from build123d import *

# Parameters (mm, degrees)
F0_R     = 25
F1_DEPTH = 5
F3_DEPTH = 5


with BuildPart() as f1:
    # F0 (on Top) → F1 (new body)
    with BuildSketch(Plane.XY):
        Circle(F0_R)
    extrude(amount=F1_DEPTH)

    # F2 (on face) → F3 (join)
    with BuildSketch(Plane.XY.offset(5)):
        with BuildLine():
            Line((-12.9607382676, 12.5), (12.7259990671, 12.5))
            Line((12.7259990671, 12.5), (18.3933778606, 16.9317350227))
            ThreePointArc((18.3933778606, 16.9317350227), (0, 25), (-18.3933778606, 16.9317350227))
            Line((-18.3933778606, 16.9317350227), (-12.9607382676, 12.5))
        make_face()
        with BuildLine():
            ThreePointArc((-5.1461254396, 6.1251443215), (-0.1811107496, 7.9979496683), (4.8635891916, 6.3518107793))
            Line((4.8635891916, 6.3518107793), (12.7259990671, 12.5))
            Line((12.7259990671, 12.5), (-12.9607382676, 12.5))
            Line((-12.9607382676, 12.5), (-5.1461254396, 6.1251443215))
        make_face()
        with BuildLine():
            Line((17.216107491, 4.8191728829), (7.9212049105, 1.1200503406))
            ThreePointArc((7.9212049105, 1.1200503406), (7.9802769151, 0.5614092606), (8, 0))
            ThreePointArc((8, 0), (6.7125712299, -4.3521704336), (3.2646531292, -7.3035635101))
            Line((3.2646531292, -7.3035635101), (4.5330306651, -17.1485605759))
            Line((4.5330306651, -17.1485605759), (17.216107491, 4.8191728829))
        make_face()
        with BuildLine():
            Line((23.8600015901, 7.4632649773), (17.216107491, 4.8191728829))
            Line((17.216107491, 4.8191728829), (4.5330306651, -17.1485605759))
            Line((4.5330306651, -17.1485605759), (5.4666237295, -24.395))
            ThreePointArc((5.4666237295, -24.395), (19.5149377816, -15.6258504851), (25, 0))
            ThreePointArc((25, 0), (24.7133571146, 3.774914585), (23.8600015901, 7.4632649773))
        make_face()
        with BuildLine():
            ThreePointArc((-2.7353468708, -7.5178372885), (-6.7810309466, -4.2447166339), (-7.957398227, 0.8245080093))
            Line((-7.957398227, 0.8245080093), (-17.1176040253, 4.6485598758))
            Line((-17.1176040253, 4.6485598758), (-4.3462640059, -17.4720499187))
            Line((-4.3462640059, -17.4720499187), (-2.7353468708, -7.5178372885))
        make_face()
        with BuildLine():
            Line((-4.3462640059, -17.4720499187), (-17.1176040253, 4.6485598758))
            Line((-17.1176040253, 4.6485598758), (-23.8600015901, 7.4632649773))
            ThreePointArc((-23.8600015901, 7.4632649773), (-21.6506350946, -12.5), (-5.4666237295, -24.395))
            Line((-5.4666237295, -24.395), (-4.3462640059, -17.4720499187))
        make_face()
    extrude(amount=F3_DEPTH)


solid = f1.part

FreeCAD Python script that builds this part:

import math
import FreeCAD as App
import Part
import Sketcher

doc = App.newDocument("Part")
body = doc.addObject("PartDesign::Body", "Body")

# Sketch on XY plane
sketch1 = doc.addObject("Sketcher::SketchObject", "Sketch")
body.addObject(sketch1)
sketch1.AttachmentSupport = (doc.XY_Plane, [""])
sketch1.MapMode = "FlatFace"
sketch1.addGeometry(Part.Circle(App.Vector(0, 0, 0), App.Vector(0, 0, 1), 25), False)
sketch1.addConstraint(Sketcher.Constraint("Coincident", 0, 3, -1, 1))
sketch1.addConstraint(Sketcher.Constraint("Diameter", 0, 50.0))
pad1 = doc.addObject("PartDesign::Pad", "Pad")
body.addObject(pad1)
pad1.Profile = sketch1
pad1.Length = 5

# Sketch on XY plane
sketch2 = doc.addObject("Sketcher::SketchObject", "Sketch001")
body.addObject(sketch2)
sketch2.AttachmentSupport = (doc.XY_Plane, [""])
sketch2.MapMode = "FlatFace"
sketch2.AttachmentOffset = App.Placement(App.Vector(0, 0, 5), App.Rotation())
sketch2.addGeometry(Part.LineSegment(App.Vector(12.7, 12.5, 0), App.Vector(18.4, 16.9, 0)), False)
sketch2.addGeometry(Part.ArcOfCircle(Part.Circle(App.Vector(0, 0, 0), App.Vector(0, 0, 1), 25), math.radians(43), math.radians(137)), False)
sketch2.addGeometry(Part.LineSegment(App.Vector(-18.4, 16.9, 0), App.Vector(-5.1, 6.1, 0)), False)
sketch2.addGeometry(Part.ArcOfCircle(Part.Circle(App.Vector(0, 0, 0), App.Vector(0, 0, 1), 8), math.radians(53), math.radians(130)), False)
sketch2.addGeometry(Part.LineSegment(App.Vector(4.9, 6.4, 0), App.Vector(12.7, 12.5, 0)), False)
sketch2.addGeometry(Part.LineSegment(App.Vector(17.2, 4.8, 0), App.Vector(7.9, 1.1, 0)), False)
sketch2.addGeometry(Part.ArcOfCircle(Part.Circle(App.Vector(0, 0, 0), App.Vector(0, 0, 1), 8), math.radians(0), math.radians(8.05)), False)
sketch2.addGeometry(Part.ArcOfCircle(Part.Circle(App.Vector(0, 0, 0), App.Vector(0, 0, 1), 8), math.radians(-66), math.radians(0)), False)
sketch2.addGeometry(Part.LineSegment(App.Vector(3.3, -7.3, 0), App.Vector(4.5, -17.1, 0)), False)
sketch2.addGeometry(Part.LineSegment(App.Vector(4.5, -17.1, 0), App.Vector(5.5, -24.4, 0)), False)
sketch2.addGeometry(Part.ArcOfCircle(Part.Circle(App.Vector(0, 0, 0), App.Vector(0, 0, 1), 25), math.radians(-77), math.radians(0)), False)
sketch2.addGeometry(Part.ArcOfCircle(Part.Circle(App.Vector(0, 0, 0), App.Vector(0, 0, 1), 25), math.radians(0), math.radians(17.37)), False)
sketch2.addGeometry(Part.LineSegment(App.Vector(23.9, 7.5, 0), App.Vector(17.2, 4.8, 0)), False)
sketch2.addGeometry(Part.ArcOfCircle(Part.Circle(App.Vector(0, 0, 0), App.Vector(0, 0, 1), 8), math.radians(174), math.radians(250)), False)
sketch2.addGeometry(Part.LineSegment(App.Vector(-8, 0.8, 0), App.Vector(-17.1, 4.6, 0)), False)
sketch2.addGeometry(Part.LineSegment(App.Vector(-17.1, 4.6, 0), App.Vector(-23.9, 7.5, 0)), False)
sketch2.addGeometry(Part.ArcOfCircle(Part.Circle(App.Vector(0, 0, 0), App.Vector(0, 0, 1), 25), math.radians(163), math.radians(257)), False)
sketch2.addGeometry(Part.LineSegment(App.Vector(-5.5, -24.4, 0), App.Vector(-4.3, -17.5, 0)), False)
sketch2.addGeometry(Part.LineSegment(App.Vector(-4.3, -17.5, 0), App.Vector(-2.7, -7.5, 0)), False)
sketch2.addConstraint(Sketcher.Constraint("Coincident", 0, 2, 1, 1))
sketch2.addConstraint(Sketcher.Constraint("Coincident", 1, 2, 2, 1))
sketch2.addConstraint(Sketcher.Constraint("Coincident", 2, 2, 3, 2))
sketch2.addConstraint(Sketcher.Constraint("Coincident", 3, 1, 4, 1))
sketch2.addConstraint(Sketcher.Constraint("Coincident", 4, 2, 0, 1))
sketch2.addConstraint(Sketcher.Constraint("Coincident", 5, 2, 6, 2))
sketch2.addConstraint(Sketcher.Constraint("Tangent", 6, 1, 7, 2))
sketch2.addConstraint(Sketcher.Constraint("Coincident", 7, 1, 8, 1))
sketch2.addConstraint(Sketcher.Constraint("Coincident", 8, 2, 9, 1))
sketch2.addConstraint(Sketcher.Constraint("Coincident", 9, 2, 10, 1))
sketch2.addConstraint(Sketcher.Constraint("Tangent", 10, 2, 11, 1))
sketch2.addConstraint(Sketcher.Constraint("Coincident", 11, 2, 12, 1))
sketch2.addConstraint(Sketcher.Constraint("Coincident", 12, 2, 5, 1))
sketch2.addConstraint(Sketcher.Constraint("Coincident", 13, 1, 14, 1))
sketch2.addConstraint(Sketcher.Constraint("Coincident", 14, 2, 15, 1))
sketch2.addConstraint(Sketcher.Constraint("Coincident", 15, 2, 16, 1))
sketch2.addConstraint(Sketcher.Constraint("Coincident", 16, 2, 17, 1))
sketch2.addConstraint(Sketcher.Constraint("Coincident", 17, 2, 18, 1))
sketch2.addConstraint(Sketcher.Constraint("Coincident", 18, 2, 13, 2))
sketch2.addConstraint(Sketcher.Constraint("Coincident", 1, 3, -1, 1))
sketch2.addConstraint(Sketcher.Constraint("Coincident", 3, 3, -1, 1))
sketch2.addConstraint(Sketcher.Constraint("Coincident", 6, 3, -1, 1))
sketch2.addConstraint(Sketcher.Constraint("Coincident", 10, 3, -1, 1))
sketch2.addConstraint(Sketcher.Constraint("Coincident", 13, 3, -1, 1))
sketch2.addConstraint(Sketcher.Constraint("Coincident", 16, 3, -1, 1))
sketch2.addConstraint(Sketcher.Constraint("Equal", 3, 6))
sketch2.addConstraint(Sketcher.Constraint("Equal", 6, 7))
sketch2.addConstraint(Sketcher.Constraint("Equal", 1, 10))
sketch2.addConstraint(Sketcher.Constraint("Equal", 10, 11))
sketch2.addConstraint(Sketcher.Constraint("Equal", 7, 13))
sketch2.addConstraint(Sketcher.Constraint("Equal", 11, 16))
sketch2.addConstraint(Sketcher.Constraint("PointOnObject", 6, 1, -1))
sketch2.addConstraint(Sketcher.Constraint("PointOnObject", 10, 2, -1))
sketch2.addConstraint(Sketcher.Constraint("Parallel", 0, 4))
sketch2.addConstraint(Sketcher.Constraint("Parallel", 8, 9))
sketch2.addConstraint(Sketcher.Constraint("Parallel", 5, 12))
sketch2.addConstraint(Sketcher.Constraint("Parallel", 14, 15))
sketch2.addConstraint(Sketcher.Constraint("Parallel", 17, 18))
sketch2.addConstraint(Sketcher.Constraint("Horizontal", 0, 2, 1, 2))
sketch2.addConstraint(Sketcher.Constraint("Horizontal", 11, 2, 15, 2))
sketch2.addConstraint(Sketcher.Constraint("Horizontal", 9, 2, 16, 2))
sketch2.addConstraint(Sketcher.Constraint("Equal", 8, 14))
sketch2.addConstraint(Sketcher.Constraint("Equal", 9, 15))
sketch2.addConstraint(Sketcher.Constraint("Radius", 1, 25.0))
sketch2.addConstraint(Sketcher.Constraint("Radius", 3, 8.0))
sketch2.addConstraint(Sketcher.Constraint("DistanceX", 18, 2, 7, 1, 6.0))
sketch2.addConstraint(Sketcher.Constraint("DistanceY", -1, 1, 4, 2, 12.5))
sketch2.addConstraint(Sketcher.Constraint("DistanceX", -1, 1, 11, 2, 23.860002))
sketch2.addConstraint(Sketcher.Constraint("DistanceX", -1, 1, 4, 2, 12.725999))
sketch2.addConstraint(Sketcher.Constraint("DistanceY", 9, 2, -1, 1, 24.395))
sketch2.addConstraint(Sketcher.Constraint("DistanceX", 13, 1, -1, 1, 7.957398))
sketch2.addConstraint(Sketcher.Constraint("Distance", 9, 7.306332))
sketch2.addConstraint(Sketcher.Constraint("Distance", 17, 7.01302))
sketch2.addConstraint(Sketcher.Constraint("DistanceX", -1, 1, 3, 1, 4.863589))
sketch2.addConstraint(Sketcher.Constraint("DistanceY", -1, 1, 5, 2, 1.12005))
sketch2.addConstraint(Sketcher.Constraint("DistanceX", 4, 2, 12, 2, 4.490108))
sketch2.addConstraint(Sketcher.Constraint("DistanceX", 14, 2, 2, 2, 11.971479))
pad2 = doc.addObject("PartDesign::Pad", "Pad001")
body.addObject(pad2)
pad2.Profile = sketch2
pad2.Length = 5

doc.recompute()
